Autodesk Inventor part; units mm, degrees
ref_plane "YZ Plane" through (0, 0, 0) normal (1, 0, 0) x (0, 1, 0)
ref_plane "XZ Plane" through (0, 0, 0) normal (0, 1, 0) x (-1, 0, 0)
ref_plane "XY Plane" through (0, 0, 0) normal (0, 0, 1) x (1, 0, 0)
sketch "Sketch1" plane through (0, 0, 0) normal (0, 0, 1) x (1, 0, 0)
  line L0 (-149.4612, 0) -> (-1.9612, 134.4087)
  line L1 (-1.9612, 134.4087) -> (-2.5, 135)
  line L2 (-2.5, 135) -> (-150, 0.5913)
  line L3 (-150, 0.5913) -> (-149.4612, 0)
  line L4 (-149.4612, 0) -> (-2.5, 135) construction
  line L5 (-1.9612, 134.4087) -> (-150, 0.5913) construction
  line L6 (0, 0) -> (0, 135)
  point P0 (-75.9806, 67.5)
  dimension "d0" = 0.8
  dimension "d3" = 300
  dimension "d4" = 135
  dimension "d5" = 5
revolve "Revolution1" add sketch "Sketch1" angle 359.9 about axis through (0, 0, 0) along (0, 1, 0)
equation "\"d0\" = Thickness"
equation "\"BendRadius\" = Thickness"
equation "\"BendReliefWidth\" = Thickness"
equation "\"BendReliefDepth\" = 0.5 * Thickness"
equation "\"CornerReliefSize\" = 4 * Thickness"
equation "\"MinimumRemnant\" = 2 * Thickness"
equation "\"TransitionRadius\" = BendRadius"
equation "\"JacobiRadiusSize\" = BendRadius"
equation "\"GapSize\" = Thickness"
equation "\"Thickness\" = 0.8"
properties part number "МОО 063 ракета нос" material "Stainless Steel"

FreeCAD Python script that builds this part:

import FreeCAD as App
import Part
import Sketcher
Q = App.Units.Quantity

doc = App.newDocument("Part")
body = doc.addObject("PartDesign::Body", "Body")

sketch1 = body.newObject("Sketcher::SketchObject", "Sketch")
sketch1.AttachmentSupport = (doc.getObject("XY_Plane"), [""])
sketch1.MapMode = "FlatFace"
sketch1.addGeometry([
    Part.LineSegment(App.Vector(-150, 0.6, 0), App.Vector(-149.5, 0, 0)),
    Part.LineSegment(App.Vector(-149.5, 0, 0), App.Vector(-2, 134.4, 0)),
    Part.LineSegment(App.Vector(-2, 134.4, 0), App.Vector(-2.5, 135, 0)),
    Part.LineSegment(App.Vector(-2.5, 135, 0), App.Vector(-150, 0.6, 0)),
], False)
sketch1.addConstraint([
    Sketcher.Constraint("Coincident", 0, 2, 1, 1),
    Sketcher.Constraint("Coincident", 1, 2, 2, 1),
    Sketcher.Constraint("Coincident", 2, 2, 3, 1),
    Sketcher.Constraint("Coincident", 3, 2, 0, 1),
    Sketcher.Constraint("PointOnObject", 0, 2, -1),
    Sketcher.Constraint("Perpendicular", 0, 1),
    Sketcher.Constraint("Perpendicular", 1, 2),
    Sketcher.Constraint("Perpendicular", 2, 3),
    Sketcher.Constraint("DistanceY", -1, 1, 2, 2, Q("135 mm")),
    Sketcher.Constraint("Distance", 0, Q("0.8 mm")),
    Sketcher.Constraint("DistanceX", 3, 2, -1, 1, Q("150 mm")),
    Sketcher.Constraint("DistanceX", 2, 2, -1, 1, Q("2.5 mm")),
])
revolution = body.newObject("PartDesign::Revolution", "Revolution")
revolution.Profile = sketch1
revolution.ReferenceAxis = (sketch1, ["V_Axis"])
revolution.Angle = 359.9

doc.recompute()
